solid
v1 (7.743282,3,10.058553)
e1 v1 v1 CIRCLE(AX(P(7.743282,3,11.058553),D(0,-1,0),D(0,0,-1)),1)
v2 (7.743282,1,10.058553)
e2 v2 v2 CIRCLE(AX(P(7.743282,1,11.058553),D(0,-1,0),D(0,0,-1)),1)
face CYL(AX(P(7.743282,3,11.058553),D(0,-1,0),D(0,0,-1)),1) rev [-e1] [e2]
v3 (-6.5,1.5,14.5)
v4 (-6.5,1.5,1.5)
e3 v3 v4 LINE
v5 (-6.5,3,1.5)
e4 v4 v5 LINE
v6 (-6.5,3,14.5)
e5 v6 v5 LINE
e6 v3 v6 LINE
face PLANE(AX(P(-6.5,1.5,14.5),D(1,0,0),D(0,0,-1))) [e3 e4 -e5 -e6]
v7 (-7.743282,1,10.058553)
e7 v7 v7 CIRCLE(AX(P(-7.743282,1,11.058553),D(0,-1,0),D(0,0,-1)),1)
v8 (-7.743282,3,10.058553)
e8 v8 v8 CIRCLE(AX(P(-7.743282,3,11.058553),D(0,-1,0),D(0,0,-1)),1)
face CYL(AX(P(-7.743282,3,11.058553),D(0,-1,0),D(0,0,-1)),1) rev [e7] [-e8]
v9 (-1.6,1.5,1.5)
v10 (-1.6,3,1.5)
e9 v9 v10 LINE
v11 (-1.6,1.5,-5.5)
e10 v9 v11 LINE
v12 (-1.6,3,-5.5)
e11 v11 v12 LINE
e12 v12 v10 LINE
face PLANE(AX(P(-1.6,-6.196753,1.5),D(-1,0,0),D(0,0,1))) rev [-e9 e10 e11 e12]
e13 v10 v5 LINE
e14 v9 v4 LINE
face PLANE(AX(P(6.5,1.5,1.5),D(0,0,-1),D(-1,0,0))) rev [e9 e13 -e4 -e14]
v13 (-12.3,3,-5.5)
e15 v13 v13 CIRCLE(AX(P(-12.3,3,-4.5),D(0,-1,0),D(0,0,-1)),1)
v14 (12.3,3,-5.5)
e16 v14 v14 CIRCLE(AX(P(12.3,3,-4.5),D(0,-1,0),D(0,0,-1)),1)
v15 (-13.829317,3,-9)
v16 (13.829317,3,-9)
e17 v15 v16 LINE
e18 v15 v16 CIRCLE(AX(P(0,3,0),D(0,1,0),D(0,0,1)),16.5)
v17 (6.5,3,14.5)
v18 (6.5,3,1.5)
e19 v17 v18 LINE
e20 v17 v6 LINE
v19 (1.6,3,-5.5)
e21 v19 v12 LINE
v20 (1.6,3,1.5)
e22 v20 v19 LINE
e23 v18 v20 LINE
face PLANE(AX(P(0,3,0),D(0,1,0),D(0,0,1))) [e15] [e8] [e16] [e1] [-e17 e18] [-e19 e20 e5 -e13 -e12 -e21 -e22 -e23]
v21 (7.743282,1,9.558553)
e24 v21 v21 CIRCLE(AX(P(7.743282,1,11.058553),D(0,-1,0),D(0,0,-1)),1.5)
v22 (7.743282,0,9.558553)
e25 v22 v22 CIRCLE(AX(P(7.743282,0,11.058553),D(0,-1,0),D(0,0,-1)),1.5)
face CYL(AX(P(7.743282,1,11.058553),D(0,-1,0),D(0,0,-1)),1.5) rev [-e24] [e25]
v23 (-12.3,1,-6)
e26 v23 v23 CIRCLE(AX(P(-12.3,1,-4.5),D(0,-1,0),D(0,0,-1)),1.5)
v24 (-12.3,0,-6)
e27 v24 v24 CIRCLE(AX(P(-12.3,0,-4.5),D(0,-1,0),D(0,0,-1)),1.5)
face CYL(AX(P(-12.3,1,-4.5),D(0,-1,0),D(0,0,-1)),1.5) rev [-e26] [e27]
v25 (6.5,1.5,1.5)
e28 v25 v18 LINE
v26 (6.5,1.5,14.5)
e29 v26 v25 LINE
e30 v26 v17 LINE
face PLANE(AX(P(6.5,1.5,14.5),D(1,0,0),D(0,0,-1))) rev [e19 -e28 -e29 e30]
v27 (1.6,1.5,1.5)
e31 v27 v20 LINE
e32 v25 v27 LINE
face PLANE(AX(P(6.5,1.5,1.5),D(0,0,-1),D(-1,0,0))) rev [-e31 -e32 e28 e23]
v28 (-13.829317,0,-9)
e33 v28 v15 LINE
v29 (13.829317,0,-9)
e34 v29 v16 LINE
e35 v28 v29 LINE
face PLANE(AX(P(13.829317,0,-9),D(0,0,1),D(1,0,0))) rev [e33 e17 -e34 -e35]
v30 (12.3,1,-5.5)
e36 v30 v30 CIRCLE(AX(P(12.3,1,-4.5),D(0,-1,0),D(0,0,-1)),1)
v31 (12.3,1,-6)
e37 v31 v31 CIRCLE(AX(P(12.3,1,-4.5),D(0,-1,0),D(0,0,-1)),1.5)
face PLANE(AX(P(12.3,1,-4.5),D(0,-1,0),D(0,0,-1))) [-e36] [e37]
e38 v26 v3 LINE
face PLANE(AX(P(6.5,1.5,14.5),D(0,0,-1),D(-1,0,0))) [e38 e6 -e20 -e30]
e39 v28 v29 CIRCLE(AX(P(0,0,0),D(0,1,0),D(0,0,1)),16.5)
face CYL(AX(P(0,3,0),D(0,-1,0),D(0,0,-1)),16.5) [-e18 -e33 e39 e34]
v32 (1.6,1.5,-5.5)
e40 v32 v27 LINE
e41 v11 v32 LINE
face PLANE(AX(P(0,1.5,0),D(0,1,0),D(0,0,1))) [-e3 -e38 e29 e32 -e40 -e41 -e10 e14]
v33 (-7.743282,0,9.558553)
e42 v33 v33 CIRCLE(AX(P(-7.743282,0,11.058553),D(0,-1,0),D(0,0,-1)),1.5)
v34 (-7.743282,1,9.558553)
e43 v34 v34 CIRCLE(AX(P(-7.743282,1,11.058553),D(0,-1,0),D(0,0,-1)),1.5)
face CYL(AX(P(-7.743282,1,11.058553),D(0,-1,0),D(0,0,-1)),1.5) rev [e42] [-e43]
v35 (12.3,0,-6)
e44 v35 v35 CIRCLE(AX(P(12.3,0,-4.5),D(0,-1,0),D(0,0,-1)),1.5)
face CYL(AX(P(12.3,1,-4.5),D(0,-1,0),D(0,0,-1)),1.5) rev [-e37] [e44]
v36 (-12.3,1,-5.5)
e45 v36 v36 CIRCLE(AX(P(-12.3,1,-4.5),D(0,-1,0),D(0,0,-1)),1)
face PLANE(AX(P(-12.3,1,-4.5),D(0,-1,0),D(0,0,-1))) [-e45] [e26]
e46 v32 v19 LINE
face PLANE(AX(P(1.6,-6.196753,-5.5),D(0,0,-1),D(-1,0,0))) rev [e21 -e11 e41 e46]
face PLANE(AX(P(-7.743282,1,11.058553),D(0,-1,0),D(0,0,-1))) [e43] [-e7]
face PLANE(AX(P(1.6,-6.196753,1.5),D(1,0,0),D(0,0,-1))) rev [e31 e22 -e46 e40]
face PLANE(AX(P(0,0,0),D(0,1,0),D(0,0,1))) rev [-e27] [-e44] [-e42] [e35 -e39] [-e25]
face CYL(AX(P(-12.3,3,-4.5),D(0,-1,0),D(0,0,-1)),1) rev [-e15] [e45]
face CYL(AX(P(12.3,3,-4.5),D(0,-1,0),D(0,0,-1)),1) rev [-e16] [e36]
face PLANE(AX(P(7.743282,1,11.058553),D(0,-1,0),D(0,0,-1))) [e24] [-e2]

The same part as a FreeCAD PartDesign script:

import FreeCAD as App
import Part
import Sketcher

doc = App.newDocument("Part")
body = doc.addObject("PartDesign::Body", "Body")

sketch1 = doc.addObject("Sketcher::SketchObject", "Sketch")
body.addObject(sketch1)
sketch1.AttachmentSupport = (doc.XZ_Plane, [""])
sketch1.MapMode = "FlatFace"
sketch1.addGeometry(Part.Circle(App.Vector(0, 0, 0), App.Vector(0, 0, 1), 16), False)
sketch1.addConstraint([
    Sketcher.Constraint("Coincident", 0, 3, -1, 1),
    Sketcher.Constraint("Diameter", 0, 33.0),
])
pad1 = doc.addObject("PartDesign::Pad", "Pad")
body.addObject(pad1)
pad1.Profile = sketch1
pad1.Length = 3
pad1.Reversed = True

sketch2 = doc.addObject("Sketcher::SketchObject", "Sketch001")
body.addObject(sketch2)
sketch2.AttachmentSupport = (doc.XZ_Plane, [""])
sketch2.MapMode = "FlatFace"
sketch2.AttachmentOffset = App.Placement(App.Vector(0, 0, -3), App.Rotation())
sketch2.addGeometry([
    Part.LineSegment(App.Vector(-6, 2, 0), App.Vector(-6, 14, 0)),
    Part.LineSegment(App.Vector(-6, 14, 0), App.Vector(6, 14, 0)),
    Part.LineSegment(App.Vector(6, 14, 0), App.Vector(6, 2, 0)),
    Part.LineSegment(App.Vector(6, 2, 0), App.Vector(-6, 2, 0)),
], False)
sketch2.addConstraint([
    Sketcher.Constraint("Coincident", 0, 2, 1, 1),
    Sketcher.Constraint("Coincident", 1, 2, 2, 1),
    Sketcher.Constraint("Coincident", 2, 2, 3, 1),
    Sketcher.Constraint("Coincident", 3, 2, 0, 1),
    Sketcher.Constraint("Vertical", 0),
    Sketcher.Constraint("Horizontal", 1),
    Sketcher.Constraint("Vertical", 2),
    Sketcher.Constraint("Horizontal", 3),
    Sketcher.Constraint("Equal", 3, 0),
    Sketcher.Constraint("DistanceX", 1, 1, 1, 2, 13.0),
    Sketcher.Constraint("DistanceX", 0, 2, -1, 1, 6.5),
    Sketcher.Constraint("DistanceY", -1, 1, 0, 2, 14.5),
])
pocket1 = doc.addObject("PartDesign::Pocket", "Pocket")
body.addObject(pocket1)
pocket1.Profile = sketch2
pocket1.Length = 1.5
pocket1.Reversed = True

sketch3 = doc.addObject("Sketcher::SketchObject", "Sketch002")
body.addObject(sketch3)
sketch3.AttachmentSupport = (doc.XZ_Plane, [""])
sketch3.MapMode = "FlatFace"
sketch3.AttachmentOffset = App.Placement(App.Vector(0, 0, -3), App.Rotation())
sketch3.addGeometry([
    Part.LineSegment(App.Vector(-1.6, -5.5, 0), App.Vector(-1.6, 1.5, 0)),
    Part.LineSegment(App.Vector(-1.6, 1.5, 0), App.Vector(1.6, 1.5, 0)),
    Part.LineSegment(App.Vector(1.6, 1.5, 0), App.Vector(1.6, -5.5, 0)),
    Part.LineSegment(App.Vector(1.6, -5.5, 0), App.Vector(-1.6, -5.5, 0)),
], False)
sketch3.addConstraint([
    Sketcher.Constraint("Coincident", 0, 2, 1, 1),
    Sketcher.Constraint("Coincident", 1, 2, 2, 1),
    Sketcher.Constraint("Coincident", 2, 2, 3, 1),
    Sketcher.Constraint("Coincident", 3, 2, 0, 1),
    Sketcher.Constraint("Vertical", 0),
    Sketcher.Constraint("Horizontal", 1),
    Sketcher.Constraint("Vertical", 2),
    Sketcher.Constraint("Horizontal", 3),
    Sketcher.Constraint("DistanceY", 0, 1, 0, 2, 7.0),
    Sketcher.Constraint("DistanceX", 1, 1, 1, 2, 3.2),
    Sketcher.Constraint("DistanceX", 0, 2, -1, 1, 1.6),
    Sketcher.Constraint("DistanceY", -1, 1, 0, 2, 1.5),
])
pocket2 = doc.addObject("PartDesign::Pocket", "Pocket001")
body.addObject(pocket2)
pocket2.Profile = sketch3
pocket2.Length = 1.5
pocket2.Reversed = True

sketch4 = doc.addObject("Sketcher::SketchObject", "Sketch003")
body.addObject(sketch4)
sketch4.AttachmentSupport = (doc.XZ_Plane, [""])
sketch4.MapMode = "FlatFace"
sketch4.addGeometry([
    Part.Circle(App.Vector(7.7, 11.1, 0), App.Vector(0, 0, 1), 1.5),
    Part.Circle(App.Vector(7.7, 11.1, 0), App.Vector(0, 0, 1), 1),
    Part.Circle(App.Vector(-7.7, 11.1, 0), App.Vector(0, 0, 1), 1.5),
    Part.Circle(App.Vector(-7.7, 11.1, 0), App.Vector(0, 0, 1), 1),
    Part.Circle(App.Vector(-12.3, -4.5, 0), App.Vector(0, 0, 1), 1.5),
    Part.Circle(App.Vector(-12.3, -4.5, 0), App.Vector(0, 0, 1), 1),
    Part.Circle(App.Vector(12.3, -4.5, 0), App.Vector(0, 0, 1), 1.5),
    Part.Circle(App.Vector(12.3, -4.5, 0), App.Vector(0, 0, 1), 1),
], False)
sketch4.addConstraint([
    Sketcher.Constraint("Coincident", 1, 3, 0, 3),
    Sketcher.Constraint("Coincident", 3, 3, 2, 3),
    Sketcher.Constraint("Coincident", 5, 3, 4, 3),
    Sketcher.Constraint("Coincident", 7, 3, 6, 3),
    Sketcher.Constraint("Equal", 0, 2),
    Sketcher.Constraint("Equal", 1, 3),
    Sketcher.Constraint("Equal", 2, 4),
    Sketcher.Constraint("Equal", 3, 5),
    Sketcher.Constraint("Equal", 4, 6),
    Sketcher.Constraint("Equal", 5, 7),
    Sketcher.Constraint("Symmetric", 0, 3, 2, 3, -2),
    Sketcher.Constraint("Symmetric", 4, 3, 6, 3, -2),
    Sketcher.Constraint("Diameter", 0, 3.0),
    Sketcher.Constraint("Diameter", 1, 2.0),
    Sketcher.Constraint("DistanceX", 4, 3, -1, 1, 12.3),
    Sketcher.Constraint("DistanceY", 4, 3, -1, 1, 4.5),
    Sketcher.Constraint("DistanceX", -1, 1, 0, 3, 7.743282),
    Sketcher.Constraint("DistanceY", -1, 1, 0, 3, 11.058553),
])
pocket3 = doc.addObject("PartDesign::Pocket", "Pocket002")
body.addObject(pocket3)
pocket3.Profile = sketch4
pocket3.Length = 1

sketch5 = doc.addObject("Sketcher::SketchObject", "Sketch004")
body.addObject(sketch5)
sketch5.AttachmentSupport = (doc.XZ_Plane, [""])
sketch5.MapMode = "FlatFace"
sketch5.addGeometry([
    Part.Circle(App.Vector(7.7, 11.1, 0), App.Vector(0, 0, 1), 1),
    Part.Circle(App.Vector(-7.7, 11.1, 0), App.Vector(0, 0, 1), 1),
    Part.Circle(App.Vector(-12.3, -4.5, 0), App.Vector(0, 0, 1), 1),
    Part.Circle(App.Vector(12.3, -4.5, 0), App.Vector(0, 0, 1), 1),
], False)
sketch5.addConstraint([
    Sketcher.Constraint("Equal", 0, 1),
    Sketcher.Constraint("Equal", 1, 2),
    Sketcher.Constraint("Equal", 2, 3),
    Sketcher.Constraint("Symmetric", 0, 3, 1, 3, -2),
    Sketcher.Constraint("Symmetric", 2, 3, 3, 3, -2),
    Sketcher.Constraint("Diameter", 0, 2.0),
    Sketcher.Constraint("DistanceX", 2, 3, -1, 1, 12.3),
    Sketcher.Constraint("DistanceY", 2, 3, -1, 1, 4.5),
    Sketcher.Constraint("DistanceX", -1, 1, 0, 3, 7.743282),
    Sketcher.Constraint("DistanceY", -1, 1, 0, 3, 11.058553),
])
pocket4 = doc.addObject("PartDesign::Pocket", "Pocket003")
body.addObject(pocket4)
pocket4.Profile = sketch5
pocket4.Type = "ThroughAll"

sketch6 = doc.addObject("Sketcher::SketchObject", "Sketch005")
body.addObject(sketch6)
sketch6.AttachmentSupport = (doc.XZ_Plane, [""])
sketch6.MapMode = "FlatFace"
sketch6.AttachmentOffset = App.Placement(App.Vector(0, 0, -3), App.Rotation())
sketch6.addGeometry([
    Part.LineSegment(App.Vector(-14, -18, 0), App.Vector(-14, -9, 0)),
    Part.LineSegment(App.Vector(-14, -9, 0), App.Vector(14, -9, 0)),
    Part.LineSegment(App.Vector(14, -9, 0), App.Vector(14, -18, 0)),
    Part.LineSegment(App.Vector(14, -18, 0), App.Vector(-14, -18, 0)),
], False)
sketch6.addConstraint([
    Sketcher.Constraint("Coincident", 0, 2, 1, 1),
    Sketcher.Constraint("Coincident", 1, 2, 2, 1),
    Sketcher.Constraint("Coincident", 2, 2, 3, 1),
    Sketcher.Constraint("Coincident", 3, 2, 0, 1),
    Sketcher.Constraint("Vertical", 0),
    Sketcher.Constraint("Horizontal", 1),
    Sketcher.Constraint("Vertical", 2),
    Sketcher.Constraint("Horizontal", 3),
    Sketcher.Constraint("DistanceY", 0, 2, -1, 1, 9.0),
    Sketcher.Constraint("DistanceY", 0, 1, 0, 2, 9.051761),
    Sketcher.Constraint("DistanceX", 1, 1, 1, 2, 27.658633),
    Sketcher.Constraint("DistanceX", 0, 2, -1, 1, 13.829317),
])
pocket5 = doc.addObject("PartDesign::Pocket", "Pocket004")
body.addObject(pocket5)
pocket5.Profile = sketch6
pocket5.Type = "ThroughAll"
pocket5.Reversed = True

doc.recompute()
